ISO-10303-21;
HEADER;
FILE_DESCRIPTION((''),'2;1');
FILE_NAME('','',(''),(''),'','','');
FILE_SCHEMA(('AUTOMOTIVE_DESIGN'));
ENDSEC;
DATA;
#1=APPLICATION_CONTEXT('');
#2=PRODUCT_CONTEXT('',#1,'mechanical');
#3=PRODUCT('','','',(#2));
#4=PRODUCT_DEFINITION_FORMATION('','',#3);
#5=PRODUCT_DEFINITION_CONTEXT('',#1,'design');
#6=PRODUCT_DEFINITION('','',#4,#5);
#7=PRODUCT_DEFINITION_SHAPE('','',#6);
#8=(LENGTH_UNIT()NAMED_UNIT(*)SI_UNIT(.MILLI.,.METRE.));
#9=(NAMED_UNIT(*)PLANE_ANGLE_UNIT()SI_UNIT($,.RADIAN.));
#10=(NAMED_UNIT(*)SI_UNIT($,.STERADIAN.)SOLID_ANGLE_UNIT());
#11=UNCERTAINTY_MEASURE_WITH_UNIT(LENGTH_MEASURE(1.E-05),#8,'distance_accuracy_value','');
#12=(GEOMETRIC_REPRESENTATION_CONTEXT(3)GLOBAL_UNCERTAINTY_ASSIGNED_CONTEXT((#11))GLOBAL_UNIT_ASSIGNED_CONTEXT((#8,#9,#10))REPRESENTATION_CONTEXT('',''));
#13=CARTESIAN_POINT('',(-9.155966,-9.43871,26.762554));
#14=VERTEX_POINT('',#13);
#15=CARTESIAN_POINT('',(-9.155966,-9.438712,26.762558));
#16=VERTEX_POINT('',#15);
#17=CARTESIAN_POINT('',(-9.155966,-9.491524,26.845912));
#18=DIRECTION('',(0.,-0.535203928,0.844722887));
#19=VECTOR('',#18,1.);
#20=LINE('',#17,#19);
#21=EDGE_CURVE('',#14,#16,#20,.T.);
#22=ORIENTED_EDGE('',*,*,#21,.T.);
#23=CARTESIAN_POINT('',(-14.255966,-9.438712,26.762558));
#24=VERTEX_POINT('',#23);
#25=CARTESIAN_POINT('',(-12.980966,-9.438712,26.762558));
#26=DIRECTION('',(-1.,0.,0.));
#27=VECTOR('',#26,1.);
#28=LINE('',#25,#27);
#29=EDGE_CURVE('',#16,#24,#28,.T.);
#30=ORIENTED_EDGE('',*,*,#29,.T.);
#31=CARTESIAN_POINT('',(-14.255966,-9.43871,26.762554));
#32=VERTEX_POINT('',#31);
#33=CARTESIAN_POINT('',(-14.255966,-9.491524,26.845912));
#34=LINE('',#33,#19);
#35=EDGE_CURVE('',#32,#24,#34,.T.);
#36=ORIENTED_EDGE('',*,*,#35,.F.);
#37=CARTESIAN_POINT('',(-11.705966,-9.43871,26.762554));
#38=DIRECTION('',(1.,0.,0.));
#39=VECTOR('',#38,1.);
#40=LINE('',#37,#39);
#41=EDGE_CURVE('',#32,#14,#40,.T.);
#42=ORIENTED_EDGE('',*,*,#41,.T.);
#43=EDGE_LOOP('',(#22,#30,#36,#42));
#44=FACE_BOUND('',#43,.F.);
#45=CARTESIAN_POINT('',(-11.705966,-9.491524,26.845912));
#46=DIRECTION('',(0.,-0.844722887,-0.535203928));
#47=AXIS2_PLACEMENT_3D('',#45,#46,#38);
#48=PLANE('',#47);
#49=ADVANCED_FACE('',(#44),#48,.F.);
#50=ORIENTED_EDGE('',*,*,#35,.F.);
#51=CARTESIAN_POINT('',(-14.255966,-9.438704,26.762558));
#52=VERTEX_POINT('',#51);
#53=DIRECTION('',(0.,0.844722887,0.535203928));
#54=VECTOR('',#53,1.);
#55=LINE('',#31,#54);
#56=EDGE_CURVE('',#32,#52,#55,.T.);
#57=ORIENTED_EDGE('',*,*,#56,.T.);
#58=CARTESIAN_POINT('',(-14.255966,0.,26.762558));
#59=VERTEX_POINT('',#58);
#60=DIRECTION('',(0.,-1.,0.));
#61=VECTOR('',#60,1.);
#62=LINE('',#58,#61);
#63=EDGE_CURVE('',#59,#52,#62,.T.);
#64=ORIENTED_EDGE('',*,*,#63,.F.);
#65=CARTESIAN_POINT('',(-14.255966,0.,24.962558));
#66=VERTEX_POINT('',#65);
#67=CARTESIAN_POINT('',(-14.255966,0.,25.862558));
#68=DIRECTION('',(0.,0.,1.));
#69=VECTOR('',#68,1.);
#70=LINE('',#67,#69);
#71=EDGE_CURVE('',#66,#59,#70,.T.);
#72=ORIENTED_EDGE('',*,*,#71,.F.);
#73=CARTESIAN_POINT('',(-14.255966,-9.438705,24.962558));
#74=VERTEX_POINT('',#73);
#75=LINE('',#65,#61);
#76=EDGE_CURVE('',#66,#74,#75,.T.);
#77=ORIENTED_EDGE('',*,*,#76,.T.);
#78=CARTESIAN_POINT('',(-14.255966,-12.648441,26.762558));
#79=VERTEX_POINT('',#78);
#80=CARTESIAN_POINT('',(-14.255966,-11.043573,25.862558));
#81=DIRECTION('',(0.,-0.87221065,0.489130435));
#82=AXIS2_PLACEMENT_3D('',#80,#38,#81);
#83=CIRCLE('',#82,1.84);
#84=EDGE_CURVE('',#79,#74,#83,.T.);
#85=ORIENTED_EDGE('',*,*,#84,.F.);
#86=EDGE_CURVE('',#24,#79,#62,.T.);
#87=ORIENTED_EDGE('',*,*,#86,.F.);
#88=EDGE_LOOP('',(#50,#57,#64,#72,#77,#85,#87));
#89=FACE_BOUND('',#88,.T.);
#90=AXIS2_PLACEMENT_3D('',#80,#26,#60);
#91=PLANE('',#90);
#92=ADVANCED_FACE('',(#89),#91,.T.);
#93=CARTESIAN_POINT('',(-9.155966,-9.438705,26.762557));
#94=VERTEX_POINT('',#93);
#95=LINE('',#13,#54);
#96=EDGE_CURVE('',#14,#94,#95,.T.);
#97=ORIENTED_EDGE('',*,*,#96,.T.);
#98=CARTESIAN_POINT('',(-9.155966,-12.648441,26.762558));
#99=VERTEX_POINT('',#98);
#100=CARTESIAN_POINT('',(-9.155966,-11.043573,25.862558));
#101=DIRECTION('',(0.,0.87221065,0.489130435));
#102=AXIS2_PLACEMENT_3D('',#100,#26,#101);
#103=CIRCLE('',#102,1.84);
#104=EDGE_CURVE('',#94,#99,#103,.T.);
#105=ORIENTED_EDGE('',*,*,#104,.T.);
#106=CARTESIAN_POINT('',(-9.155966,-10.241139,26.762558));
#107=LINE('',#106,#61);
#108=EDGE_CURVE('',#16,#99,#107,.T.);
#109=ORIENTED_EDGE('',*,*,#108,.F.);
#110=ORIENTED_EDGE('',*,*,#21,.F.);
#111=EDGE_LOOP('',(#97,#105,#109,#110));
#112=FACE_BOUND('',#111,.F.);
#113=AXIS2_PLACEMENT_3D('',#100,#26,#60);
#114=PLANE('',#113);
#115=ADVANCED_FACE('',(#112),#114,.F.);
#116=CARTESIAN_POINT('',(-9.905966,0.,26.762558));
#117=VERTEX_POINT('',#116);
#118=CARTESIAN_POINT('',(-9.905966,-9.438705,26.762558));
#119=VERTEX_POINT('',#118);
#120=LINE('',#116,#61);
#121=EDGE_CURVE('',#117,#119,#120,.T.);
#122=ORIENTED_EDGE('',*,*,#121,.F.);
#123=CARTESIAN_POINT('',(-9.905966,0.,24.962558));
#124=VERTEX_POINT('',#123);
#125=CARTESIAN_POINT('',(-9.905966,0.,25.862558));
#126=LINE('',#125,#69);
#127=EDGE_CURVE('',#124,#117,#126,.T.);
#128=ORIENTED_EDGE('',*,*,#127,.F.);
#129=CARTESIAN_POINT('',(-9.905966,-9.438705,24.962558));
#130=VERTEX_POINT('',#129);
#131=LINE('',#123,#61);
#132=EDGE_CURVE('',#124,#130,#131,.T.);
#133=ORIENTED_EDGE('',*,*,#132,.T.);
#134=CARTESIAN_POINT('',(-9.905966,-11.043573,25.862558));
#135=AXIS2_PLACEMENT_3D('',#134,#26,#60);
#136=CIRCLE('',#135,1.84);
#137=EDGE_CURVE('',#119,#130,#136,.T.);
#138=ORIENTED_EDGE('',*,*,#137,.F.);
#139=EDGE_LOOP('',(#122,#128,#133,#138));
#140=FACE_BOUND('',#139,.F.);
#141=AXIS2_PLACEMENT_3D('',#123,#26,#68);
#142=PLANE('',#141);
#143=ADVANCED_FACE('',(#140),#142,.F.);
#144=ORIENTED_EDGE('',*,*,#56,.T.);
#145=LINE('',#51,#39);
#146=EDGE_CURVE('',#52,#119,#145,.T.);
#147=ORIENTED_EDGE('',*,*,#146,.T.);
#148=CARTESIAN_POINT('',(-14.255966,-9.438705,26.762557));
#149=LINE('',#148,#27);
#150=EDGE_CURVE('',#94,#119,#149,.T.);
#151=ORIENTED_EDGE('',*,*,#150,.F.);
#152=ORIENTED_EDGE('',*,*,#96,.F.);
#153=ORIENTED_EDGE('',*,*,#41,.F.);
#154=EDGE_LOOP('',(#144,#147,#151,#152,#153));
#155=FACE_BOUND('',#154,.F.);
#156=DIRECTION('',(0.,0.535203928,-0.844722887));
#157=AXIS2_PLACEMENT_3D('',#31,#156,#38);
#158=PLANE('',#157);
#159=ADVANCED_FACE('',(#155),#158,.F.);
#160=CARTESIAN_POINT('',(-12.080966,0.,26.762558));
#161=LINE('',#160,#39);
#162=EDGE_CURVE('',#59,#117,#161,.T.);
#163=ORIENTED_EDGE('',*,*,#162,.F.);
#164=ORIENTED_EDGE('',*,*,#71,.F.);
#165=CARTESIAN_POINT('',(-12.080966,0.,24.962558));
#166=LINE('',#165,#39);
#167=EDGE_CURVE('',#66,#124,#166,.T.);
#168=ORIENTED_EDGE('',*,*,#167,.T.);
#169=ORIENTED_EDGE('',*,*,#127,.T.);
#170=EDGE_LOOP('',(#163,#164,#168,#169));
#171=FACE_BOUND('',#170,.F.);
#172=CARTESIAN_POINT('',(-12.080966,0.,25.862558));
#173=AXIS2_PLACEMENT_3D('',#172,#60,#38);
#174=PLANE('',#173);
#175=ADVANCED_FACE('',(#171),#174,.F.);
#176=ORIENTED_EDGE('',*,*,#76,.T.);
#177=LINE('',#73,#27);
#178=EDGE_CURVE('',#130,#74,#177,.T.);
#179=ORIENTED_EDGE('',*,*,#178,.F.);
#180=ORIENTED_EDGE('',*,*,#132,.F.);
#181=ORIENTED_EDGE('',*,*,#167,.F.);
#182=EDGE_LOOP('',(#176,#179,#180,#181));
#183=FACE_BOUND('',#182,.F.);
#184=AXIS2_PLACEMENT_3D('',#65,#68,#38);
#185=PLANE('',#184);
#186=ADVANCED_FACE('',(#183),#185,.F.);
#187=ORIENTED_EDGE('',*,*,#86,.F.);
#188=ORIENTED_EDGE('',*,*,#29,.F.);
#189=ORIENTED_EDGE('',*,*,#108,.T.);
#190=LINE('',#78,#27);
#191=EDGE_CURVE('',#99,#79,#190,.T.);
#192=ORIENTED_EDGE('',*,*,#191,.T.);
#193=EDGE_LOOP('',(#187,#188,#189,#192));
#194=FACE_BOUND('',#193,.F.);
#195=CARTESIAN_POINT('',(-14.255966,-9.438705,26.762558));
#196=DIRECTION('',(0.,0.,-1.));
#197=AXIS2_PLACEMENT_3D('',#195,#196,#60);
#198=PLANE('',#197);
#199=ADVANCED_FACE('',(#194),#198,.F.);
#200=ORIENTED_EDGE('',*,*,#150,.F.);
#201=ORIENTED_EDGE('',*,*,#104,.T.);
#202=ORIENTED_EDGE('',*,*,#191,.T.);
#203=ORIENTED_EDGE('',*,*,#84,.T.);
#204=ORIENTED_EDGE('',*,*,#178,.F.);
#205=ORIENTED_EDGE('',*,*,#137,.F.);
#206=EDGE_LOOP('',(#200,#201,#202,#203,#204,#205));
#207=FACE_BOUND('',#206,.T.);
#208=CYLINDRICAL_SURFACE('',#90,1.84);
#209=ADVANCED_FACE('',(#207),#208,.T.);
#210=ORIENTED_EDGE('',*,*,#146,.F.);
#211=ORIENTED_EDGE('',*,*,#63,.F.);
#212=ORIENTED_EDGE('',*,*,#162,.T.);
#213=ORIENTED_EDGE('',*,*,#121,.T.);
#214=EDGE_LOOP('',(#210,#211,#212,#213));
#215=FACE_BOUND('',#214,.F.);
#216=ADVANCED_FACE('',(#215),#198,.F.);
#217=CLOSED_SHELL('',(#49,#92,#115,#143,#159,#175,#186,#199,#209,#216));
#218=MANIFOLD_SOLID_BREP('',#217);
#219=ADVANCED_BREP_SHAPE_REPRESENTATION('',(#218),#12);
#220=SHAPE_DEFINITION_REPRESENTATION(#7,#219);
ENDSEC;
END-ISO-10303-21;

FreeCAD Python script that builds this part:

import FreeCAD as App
import Part
import Sketcher
Q = App.Units.Quantity

doc = App.newDocument("Part")
params = doc.addObject("Spreadsheet::Sheet", "Params")
for row, (alias, value) in enumerate([
    ("sketch1_height", "1.8 mm"),
    ("sketch1_width", "4.35 mm"),
    ("pad1_length", "11.7 mm"),
    ("sketch2_diameter", "3.68 mm"),
    ("pad2_length", "5.1 mm"),
    ("pocket1_length", "25 mm"),
    ("sketch4_width", "5.1 mm"),
    ("pocket2_length", "25 mm"),
], start=1):
    params.set(f"A{row}", alias)
    params.set(f"B{row}", "=" + value)
    params.setAlias(f"B{row}", alias)

body = doc.addObject("PartDesign::Body", "Body")

# Sketch on XZ plane
sketch1 = doc.addObject("Sketcher::SketchObject", "Sketch")
body.addObject(sketch1)
sketch1.AttachmentSupport = (doc.XZ_Plane, [""])
sketch1.MapMode = "FlatFace"
sketch1.addGeometry([
    Part.LineSegment(App.Vector(-14.3, 26.8, 0), App.Vector(-14.3, 25, 0)),
    Part.LineSegment(App.Vector(-14.3, 25, 0), App.Vector(-9.9, 25, 0)),
    Part.LineSegment(App.Vector(-9.9, 25, 0), App.Vector(-9.9, 26.8, 0)),
    Part.LineSegment(App.Vector(-9.9, 26.8, 0), App.Vector(-14.3, 26.8, 0)),
], False)
sketch1.addConstraint([
    Sketcher.Constraint("Coincident", 0, 2, 1, 1),
    Sketcher.Constraint("Coincident", 1, 2, 2, 1),
    Sketcher.Constraint("Coincident", 2, 2, 3, 1),
    Sketcher.Constraint("Coincident", 3, 2, 0, 1),
    Sketcher.Constraint("Vertical", 0),
    Sketcher.Constraint("Horizontal", 1),
    Sketcher.Constraint("Vertical", 2),
    Sketcher.Constraint("Horizontal", 3),
    Sketcher.Constraint("DistanceY", 0, 2, 0, 1, Q("1.8 mm")),
    Sketcher.Constraint("DistanceX", 1, 1, 1, 2, Q("4.35 mm")),
    Sketcher.Constraint("DistanceY", -1, 1, 0, 2, Q("24.962558 mm")),
    Sketcher.Constraint("DistanceX", 0, 2, -1, 1, Q("14.255966 mm")),
])
sketch1.setExpression("Constraints[8]", "Params.sketch1_height")
sketch1.setExpression("Constraints[9]", "Params.sketch1_width")
pad1 = doc.addObject("PartDesign::Pad", "Pad")
body.addObject(pad1)
pad1.Profile = sketch1
pad1.setExpression("Length", "Params.pad1_length")

# Sketch on YZ plane
sketch2 = doc.addObject("Sketcher::SketchObject", "Sketch001")
body.addObject(sketch2)
sketch2.AttachmentSupport = (doc.YZ_Plane, [""])
sketch2.MapMode = "FlatFace"
sketch2.AttachmentOffset = App.Placement(App.Vector(0, 0, -14.255966), App.Rotation())
sketch2.addGeometry(Part.Circle(App.Vector(-11, 25.9, 0), App.Vector(0, 0, 1), 1.8), False)
sketch2.addConstraint([
    Sketcher.Constraint("Diameter", 0, Q("3.68 mm")),
    Sketcher.Constraint("DistanceY", -1, 1, 0, 3, Q("25.862558 mm")),
    Sketcher.Constraint("DistanceX", 0, 3, -1, 1, Q("11.043573 mm")),
])
sketch2.setExpression("Constraints[0]", "Params.sketch2_diameter")
pad2 = doc.addObject("PartDesign::Pad", "Pad001")
body.addObject(pad2)
pad2.Profile = sketch2
pad2.setExpression("Length", "Params.pad2_length")

# Sketch on YZ plane
sketch3 = doc.addObject("Sketcher::SketchObject", "Sketch002")
body.addObject(sketch3)
sketch3.AttachmentSupport = (doc.YZ_Plane, [""])
sketch3.MapMode = "FlatFace"
sketch3.AttachmentOffset = App.Placement(App.Vector(0, 0, -14.255966), App.Rotation())
sketch3.addGeometry([
    Part.LineSegment(App.Vector(-10.6, 28.5, 0), App.Vector(-9.4, 26.8, 0)),
    Part.LineSegment(App.Vector(-9.4, 26.8, 0), App.Vector(-31.7, 26.8, 0)),
    Part.LineSegment(App.Vector(-31.7, 26.8, 0), App.Vector(-10.6, 28.5, 0)),
], False)
sketch3.addConstraint([
    Sketcher.Constraint("Coincident", 0, 2, 1, 1),
    Sketcher.Constraint("Coincident", 1, 2, 2, 1),
    Sketcher.Constraint("Coincident", 2, 2, 0, 1),
    Sketcher.Constraint("Horizontal", 1),
    Sketcher.Constraint("Distance", 2, Q("21.240491 mm")),
    Sketcher.Constraint("DistanceX", 1, 2, 1, 1, Q("22.283803 mm")),
    Sketcher.Constraint("DistanceX", 1, 2, -1, 1, Q("31.722508 mm")),
    Sketcher.Constraint("DistanceX", 2, 2, -1, 1, Q("10.555248 mm")),
    Sketcher.Constraint("DistanceY", -1, 1, 0, 2, Q("26.762558 mm")),
])
pocket1 = doc.addObject("PartDesign::Pocket", "Pocket")
body.addObject(pocket1)
pocket1.Profile = sketch3
pocket1.setExpression("Length", "Params.pocket1_length")
pocket1.Reversed = True

# Sketch on an angled plane
sketch4 = doc.addObject("Sketcher::SketchObject", "Sketch003")
body.addObject(sketch4)
sketch4.Placement = App.Placement(App.Vector(0, 5.36427, 3.39872), App.Rotation(App.Vector(1, 0, 0), App.Vector(0, -0.535203928, 0.844722887), App.Vector(0, -0.844722887, -0.535203928), "ZXY"))
sketch4.addGeometry([
    Part.LineSegment(App.Vector(-14.26, 27.86, 0), App.Vector(-14.26, 27.66, 0)),
    Part.LineSegment(App.Vector(-14.26, 27.66, 0), App.Vector(-9.16, 27.66, 0)),
    Part.LineSegment(App.Vector(-9.16, 27.66, 0), App.Vector(-9.16, 27.86, 0)),
    Part.LineSegment(App.Vector(-9.16, 27.86, 0), App.Vector(-14.26, 27.86, 0)),
], False)
sketch4.addConstraint([
    Sketcher.Constraint("Coincident", 0, 2, 1, 1),
    Sketcher.Constraint("Coincident", 1, 2, 2, 1),
    Sketcher.Constraint("Coincident", 2, 2, 3, 1),
    Sketcher.Constraint("Coincident", 3, 2, 0, 1),
    Sketcher.Constraint("Vertical", 0),
    Sketcher.Constraint("Horizontal", 1),
    Sketcher.Constraint("Vertical", 2),
    Sketcher.Constraint("Horizontal", 3),
    Sketcher.Constraint("DistanceX", 1, 1, 1, 2, Q("5.1 mm")),
    Sketcher.Constraint("DistanceY", 0, 2, 0, 1, Q("0.197361 mm")),
    Sketcher.Constraint("DistanceY", -1, 1, 0, 2, Q("27.658579 mm")),
    Sketcher.Constraint("DistanceX", 0, 2, -1, 1, Q("14.255966 mm")),
])
sketch4.setExpression("Constraints[8]", "Params.sketch4_width")
pocket2 = doc.addObject("PartDesign::Pocket", "Pocket001")
body.addObject(pocket2)
pocket2.Profile = sketch4
pocket2.setExpression("Length", "Params.pocket2_length")

doc.recompute()
